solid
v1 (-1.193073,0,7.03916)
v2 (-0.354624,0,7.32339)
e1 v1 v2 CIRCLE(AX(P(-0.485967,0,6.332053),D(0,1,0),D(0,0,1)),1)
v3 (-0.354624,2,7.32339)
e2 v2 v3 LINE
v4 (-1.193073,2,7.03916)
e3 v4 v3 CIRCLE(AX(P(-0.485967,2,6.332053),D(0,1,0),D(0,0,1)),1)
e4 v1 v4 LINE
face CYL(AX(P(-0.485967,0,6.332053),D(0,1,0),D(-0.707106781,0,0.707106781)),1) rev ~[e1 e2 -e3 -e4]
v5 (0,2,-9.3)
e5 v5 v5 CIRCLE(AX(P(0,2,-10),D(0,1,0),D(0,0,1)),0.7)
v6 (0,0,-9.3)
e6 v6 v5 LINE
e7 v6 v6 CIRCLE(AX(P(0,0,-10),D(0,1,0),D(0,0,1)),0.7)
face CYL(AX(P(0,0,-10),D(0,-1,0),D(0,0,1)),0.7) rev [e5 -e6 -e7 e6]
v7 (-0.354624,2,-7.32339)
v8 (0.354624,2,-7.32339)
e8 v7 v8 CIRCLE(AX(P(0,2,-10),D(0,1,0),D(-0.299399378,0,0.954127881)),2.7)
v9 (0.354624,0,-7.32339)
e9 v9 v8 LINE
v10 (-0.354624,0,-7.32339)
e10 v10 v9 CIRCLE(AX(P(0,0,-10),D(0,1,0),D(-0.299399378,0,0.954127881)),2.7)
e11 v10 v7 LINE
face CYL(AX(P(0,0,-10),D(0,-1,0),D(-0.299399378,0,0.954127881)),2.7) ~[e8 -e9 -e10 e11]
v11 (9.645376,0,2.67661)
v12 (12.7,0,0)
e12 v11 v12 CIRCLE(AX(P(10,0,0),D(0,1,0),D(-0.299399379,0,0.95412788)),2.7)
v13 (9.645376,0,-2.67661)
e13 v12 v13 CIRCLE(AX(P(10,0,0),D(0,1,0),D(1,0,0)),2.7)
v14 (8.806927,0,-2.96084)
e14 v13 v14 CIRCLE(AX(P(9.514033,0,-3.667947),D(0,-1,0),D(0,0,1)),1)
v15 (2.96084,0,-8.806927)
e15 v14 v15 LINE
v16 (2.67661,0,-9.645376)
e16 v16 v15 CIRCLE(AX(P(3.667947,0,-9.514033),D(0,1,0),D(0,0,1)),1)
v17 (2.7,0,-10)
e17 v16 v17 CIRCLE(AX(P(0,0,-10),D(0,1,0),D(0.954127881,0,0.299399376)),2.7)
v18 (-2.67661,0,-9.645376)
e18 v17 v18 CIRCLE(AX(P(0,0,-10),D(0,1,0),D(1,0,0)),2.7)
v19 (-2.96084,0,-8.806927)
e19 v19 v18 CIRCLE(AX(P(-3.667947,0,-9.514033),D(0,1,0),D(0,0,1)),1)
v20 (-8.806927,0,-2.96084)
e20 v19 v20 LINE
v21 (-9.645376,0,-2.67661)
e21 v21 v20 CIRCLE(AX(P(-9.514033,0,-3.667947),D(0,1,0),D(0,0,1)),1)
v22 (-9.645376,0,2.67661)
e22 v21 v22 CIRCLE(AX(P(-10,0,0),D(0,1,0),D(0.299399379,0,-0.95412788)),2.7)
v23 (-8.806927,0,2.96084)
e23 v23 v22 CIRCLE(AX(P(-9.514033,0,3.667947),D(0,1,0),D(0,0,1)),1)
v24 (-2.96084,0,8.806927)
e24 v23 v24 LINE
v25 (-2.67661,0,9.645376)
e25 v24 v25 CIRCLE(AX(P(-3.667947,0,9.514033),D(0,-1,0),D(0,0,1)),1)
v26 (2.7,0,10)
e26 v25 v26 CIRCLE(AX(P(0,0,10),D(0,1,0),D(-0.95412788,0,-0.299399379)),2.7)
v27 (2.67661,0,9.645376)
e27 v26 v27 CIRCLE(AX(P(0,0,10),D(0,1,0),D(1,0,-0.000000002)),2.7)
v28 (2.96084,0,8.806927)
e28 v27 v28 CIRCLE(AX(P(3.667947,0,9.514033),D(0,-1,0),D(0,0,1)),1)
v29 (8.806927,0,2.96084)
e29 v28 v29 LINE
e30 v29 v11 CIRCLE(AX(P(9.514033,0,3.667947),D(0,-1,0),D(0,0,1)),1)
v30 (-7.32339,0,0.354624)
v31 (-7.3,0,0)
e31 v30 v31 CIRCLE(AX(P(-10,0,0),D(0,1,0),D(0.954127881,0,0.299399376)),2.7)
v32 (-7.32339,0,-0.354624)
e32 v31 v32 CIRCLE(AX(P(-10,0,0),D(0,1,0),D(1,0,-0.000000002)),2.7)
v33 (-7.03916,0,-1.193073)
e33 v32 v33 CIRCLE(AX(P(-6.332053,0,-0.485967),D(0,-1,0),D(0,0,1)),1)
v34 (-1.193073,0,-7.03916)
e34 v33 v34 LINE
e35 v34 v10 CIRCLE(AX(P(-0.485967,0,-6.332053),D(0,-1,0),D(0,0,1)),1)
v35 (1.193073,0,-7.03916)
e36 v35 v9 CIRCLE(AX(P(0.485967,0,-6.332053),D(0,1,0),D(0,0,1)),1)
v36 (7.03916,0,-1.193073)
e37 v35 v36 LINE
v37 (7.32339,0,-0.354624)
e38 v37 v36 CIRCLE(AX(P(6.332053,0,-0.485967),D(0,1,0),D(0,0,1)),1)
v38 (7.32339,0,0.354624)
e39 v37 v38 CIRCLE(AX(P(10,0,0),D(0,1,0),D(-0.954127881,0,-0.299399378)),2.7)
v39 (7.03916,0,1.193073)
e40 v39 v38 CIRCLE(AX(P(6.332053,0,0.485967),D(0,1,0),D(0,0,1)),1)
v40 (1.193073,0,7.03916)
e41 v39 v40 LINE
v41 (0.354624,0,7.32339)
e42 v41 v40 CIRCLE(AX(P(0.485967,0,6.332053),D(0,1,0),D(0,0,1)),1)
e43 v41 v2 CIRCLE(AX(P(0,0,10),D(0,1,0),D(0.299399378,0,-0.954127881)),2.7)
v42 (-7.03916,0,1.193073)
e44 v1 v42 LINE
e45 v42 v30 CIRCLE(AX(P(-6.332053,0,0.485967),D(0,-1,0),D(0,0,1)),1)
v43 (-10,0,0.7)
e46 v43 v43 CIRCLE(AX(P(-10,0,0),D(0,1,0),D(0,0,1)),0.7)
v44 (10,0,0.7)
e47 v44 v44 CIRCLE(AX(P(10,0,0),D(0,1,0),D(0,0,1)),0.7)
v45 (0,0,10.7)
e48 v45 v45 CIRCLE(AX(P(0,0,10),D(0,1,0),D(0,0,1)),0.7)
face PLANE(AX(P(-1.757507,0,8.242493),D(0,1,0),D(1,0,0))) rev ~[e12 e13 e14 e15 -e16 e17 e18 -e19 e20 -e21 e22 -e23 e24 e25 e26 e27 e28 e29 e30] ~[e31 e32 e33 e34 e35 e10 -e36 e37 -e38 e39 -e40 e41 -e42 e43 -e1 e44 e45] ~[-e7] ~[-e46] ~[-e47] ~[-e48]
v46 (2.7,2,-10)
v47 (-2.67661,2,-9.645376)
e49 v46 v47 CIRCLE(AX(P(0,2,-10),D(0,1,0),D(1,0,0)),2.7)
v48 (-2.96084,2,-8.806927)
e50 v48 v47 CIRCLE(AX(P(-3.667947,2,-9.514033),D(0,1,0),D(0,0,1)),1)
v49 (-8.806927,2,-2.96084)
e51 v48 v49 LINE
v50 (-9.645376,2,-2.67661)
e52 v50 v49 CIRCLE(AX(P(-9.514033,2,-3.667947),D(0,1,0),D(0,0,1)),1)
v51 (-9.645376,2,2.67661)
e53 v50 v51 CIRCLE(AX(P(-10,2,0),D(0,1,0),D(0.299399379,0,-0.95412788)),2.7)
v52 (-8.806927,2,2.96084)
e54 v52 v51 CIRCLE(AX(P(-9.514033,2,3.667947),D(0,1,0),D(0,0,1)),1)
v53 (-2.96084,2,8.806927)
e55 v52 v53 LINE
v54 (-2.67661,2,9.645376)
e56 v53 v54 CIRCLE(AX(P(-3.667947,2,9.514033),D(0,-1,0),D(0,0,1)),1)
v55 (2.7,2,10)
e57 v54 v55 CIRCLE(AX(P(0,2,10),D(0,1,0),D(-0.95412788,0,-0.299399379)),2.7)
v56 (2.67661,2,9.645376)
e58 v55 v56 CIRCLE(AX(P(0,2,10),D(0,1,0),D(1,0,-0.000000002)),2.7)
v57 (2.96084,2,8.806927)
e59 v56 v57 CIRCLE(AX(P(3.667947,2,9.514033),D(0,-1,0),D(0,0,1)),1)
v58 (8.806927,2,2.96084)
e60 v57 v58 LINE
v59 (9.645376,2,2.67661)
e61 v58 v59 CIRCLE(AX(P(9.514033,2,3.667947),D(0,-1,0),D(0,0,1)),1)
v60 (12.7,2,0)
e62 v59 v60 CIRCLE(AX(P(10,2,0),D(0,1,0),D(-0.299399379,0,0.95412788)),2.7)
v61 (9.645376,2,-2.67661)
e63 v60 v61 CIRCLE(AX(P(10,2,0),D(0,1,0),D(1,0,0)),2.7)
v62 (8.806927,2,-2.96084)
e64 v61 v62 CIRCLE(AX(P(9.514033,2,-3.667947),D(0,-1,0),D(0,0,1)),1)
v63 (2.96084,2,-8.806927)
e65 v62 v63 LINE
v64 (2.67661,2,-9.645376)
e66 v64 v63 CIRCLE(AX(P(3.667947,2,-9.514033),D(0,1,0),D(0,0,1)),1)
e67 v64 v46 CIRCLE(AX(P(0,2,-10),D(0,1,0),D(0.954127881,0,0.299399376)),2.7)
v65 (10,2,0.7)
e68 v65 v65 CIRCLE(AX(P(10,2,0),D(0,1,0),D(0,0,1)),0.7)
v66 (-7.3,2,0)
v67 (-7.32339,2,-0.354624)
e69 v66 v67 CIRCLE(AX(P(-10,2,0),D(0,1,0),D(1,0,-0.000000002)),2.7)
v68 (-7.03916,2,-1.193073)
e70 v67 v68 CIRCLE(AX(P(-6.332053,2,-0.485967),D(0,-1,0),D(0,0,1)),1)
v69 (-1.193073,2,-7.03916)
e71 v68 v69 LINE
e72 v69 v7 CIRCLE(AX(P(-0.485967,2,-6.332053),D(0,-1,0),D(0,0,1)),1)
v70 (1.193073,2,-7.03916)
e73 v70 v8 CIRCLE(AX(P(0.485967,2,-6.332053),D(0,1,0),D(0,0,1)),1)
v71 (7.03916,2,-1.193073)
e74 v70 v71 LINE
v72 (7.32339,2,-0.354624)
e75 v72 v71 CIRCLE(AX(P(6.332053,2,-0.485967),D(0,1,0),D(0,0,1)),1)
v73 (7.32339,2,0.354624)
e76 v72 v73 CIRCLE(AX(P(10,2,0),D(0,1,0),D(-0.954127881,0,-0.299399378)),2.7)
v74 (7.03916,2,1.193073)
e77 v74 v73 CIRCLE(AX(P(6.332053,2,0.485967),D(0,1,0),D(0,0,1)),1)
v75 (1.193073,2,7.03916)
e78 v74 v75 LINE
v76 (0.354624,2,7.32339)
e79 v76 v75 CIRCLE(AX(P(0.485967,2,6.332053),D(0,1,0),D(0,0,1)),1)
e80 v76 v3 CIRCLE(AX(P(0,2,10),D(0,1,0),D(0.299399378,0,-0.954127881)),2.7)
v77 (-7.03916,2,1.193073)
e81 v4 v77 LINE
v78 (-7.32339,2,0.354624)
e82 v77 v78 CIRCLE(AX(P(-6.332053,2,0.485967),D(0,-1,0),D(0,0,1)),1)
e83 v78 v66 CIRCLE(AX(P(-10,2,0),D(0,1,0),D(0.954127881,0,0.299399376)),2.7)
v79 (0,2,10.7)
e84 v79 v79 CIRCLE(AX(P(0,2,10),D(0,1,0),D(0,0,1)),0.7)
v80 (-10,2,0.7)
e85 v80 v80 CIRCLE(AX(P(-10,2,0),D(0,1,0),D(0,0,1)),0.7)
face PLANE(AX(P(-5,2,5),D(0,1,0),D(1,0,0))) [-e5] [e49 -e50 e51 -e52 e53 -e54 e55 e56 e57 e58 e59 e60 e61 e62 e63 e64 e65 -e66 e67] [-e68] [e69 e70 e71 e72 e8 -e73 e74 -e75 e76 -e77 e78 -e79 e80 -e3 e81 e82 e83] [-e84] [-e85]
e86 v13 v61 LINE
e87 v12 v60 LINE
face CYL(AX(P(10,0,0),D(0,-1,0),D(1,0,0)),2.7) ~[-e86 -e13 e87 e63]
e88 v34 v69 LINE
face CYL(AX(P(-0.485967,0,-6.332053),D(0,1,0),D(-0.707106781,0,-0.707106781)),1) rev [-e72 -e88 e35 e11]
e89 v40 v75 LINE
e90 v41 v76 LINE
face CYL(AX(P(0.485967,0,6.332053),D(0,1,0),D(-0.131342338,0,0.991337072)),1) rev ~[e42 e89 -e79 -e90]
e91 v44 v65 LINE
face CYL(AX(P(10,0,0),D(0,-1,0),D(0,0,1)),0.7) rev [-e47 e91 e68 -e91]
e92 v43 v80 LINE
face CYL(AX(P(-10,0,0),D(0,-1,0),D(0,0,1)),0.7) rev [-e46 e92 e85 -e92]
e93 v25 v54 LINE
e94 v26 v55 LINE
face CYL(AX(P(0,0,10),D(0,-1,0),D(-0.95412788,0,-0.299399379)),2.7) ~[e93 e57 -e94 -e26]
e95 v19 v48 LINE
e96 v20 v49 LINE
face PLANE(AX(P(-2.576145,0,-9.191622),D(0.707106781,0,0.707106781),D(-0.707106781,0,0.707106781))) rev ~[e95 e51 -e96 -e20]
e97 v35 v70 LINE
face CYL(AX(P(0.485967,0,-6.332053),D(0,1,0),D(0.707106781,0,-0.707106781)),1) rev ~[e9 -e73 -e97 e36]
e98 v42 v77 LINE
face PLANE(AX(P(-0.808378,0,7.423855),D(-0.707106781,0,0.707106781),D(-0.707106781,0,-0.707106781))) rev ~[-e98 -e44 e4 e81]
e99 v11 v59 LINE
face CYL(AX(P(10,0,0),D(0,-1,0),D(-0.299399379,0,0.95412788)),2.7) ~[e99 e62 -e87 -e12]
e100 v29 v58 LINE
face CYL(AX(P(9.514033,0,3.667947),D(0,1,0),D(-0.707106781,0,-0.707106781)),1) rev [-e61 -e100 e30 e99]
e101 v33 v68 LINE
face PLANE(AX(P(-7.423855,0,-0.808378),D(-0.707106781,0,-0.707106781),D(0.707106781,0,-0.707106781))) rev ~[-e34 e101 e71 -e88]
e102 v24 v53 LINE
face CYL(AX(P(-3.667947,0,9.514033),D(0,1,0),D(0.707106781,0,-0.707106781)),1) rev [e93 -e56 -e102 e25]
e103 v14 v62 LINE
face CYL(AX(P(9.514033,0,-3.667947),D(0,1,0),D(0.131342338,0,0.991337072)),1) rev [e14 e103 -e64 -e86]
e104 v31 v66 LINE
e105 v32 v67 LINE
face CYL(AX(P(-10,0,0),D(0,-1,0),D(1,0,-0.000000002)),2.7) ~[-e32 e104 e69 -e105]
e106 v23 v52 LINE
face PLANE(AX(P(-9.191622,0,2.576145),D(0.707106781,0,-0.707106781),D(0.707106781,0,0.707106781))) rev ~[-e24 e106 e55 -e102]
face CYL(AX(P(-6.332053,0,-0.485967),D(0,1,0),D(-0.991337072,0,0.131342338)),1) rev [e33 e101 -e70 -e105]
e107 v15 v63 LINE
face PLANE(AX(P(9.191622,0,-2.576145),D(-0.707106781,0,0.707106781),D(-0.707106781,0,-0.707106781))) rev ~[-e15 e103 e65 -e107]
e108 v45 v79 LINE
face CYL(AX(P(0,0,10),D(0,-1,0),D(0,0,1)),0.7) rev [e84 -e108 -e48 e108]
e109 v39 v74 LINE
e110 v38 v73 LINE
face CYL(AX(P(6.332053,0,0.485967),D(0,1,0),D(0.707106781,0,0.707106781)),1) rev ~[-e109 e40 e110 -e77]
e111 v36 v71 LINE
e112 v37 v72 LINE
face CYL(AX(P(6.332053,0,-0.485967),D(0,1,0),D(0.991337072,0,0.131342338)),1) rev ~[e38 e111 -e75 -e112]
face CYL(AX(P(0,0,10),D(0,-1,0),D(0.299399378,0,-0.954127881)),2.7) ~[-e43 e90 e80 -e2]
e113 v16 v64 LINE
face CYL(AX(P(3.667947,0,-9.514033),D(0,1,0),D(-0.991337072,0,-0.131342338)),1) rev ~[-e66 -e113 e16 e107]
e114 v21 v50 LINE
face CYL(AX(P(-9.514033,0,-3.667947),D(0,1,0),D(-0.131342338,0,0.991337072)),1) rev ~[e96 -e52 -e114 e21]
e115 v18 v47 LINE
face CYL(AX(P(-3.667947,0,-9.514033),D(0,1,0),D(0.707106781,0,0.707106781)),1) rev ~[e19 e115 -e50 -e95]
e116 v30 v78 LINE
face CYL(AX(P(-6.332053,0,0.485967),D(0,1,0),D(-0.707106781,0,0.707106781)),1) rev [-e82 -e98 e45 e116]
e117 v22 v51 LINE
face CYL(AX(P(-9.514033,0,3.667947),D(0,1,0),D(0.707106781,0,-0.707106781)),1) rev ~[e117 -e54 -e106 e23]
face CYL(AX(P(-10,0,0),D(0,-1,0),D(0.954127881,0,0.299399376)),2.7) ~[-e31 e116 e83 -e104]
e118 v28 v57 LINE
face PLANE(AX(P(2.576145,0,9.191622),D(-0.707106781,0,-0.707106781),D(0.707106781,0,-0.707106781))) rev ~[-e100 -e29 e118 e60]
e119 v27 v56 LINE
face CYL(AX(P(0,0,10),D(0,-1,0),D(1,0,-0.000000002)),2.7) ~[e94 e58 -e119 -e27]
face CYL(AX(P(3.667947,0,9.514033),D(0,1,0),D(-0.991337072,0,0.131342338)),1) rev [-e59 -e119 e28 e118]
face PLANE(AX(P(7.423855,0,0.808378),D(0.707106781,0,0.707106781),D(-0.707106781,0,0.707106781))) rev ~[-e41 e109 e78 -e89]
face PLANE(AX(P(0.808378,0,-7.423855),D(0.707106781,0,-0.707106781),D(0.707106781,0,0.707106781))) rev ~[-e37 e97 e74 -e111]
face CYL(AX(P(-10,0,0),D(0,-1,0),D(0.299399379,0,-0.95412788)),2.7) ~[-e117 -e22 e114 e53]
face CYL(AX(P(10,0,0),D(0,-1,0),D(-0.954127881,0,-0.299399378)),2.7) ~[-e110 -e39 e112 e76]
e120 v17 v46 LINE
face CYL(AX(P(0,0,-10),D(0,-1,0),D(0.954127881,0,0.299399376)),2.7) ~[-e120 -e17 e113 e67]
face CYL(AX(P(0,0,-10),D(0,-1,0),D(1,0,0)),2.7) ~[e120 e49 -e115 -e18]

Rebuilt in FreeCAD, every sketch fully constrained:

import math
import FreeCAD as App
import Part
import Sketcher
from FreeCAD import Vector


def edges_at(feature, points):
    """Names of the edges that pass closest to the given points."""
    edges = feature.Shape.Edges
    near = lambda p: min(range(len(edges)), key=lambda i: edges[i].distToShape(Part.Vertex(*p))[0])
    return sorted({f"Edge{near(p) + 1}" for p in points})

doc = App.newDocument("Part")
body = doc.addObject("PartDesign::Body", "Body")

sketch1 = body.newObject("Sketcher::SketchObject", "Sketch")
sketch1.AttachmentSupport = (doc.getObject("XZ_Plane"), [""])
sketch1.MapMode = "FlatFace"
sketch1.addGeometry([
    Part.ArcOfCircle(Part.Circle(Vector(-10, 0, 0), Vector(0, 0, 1), 2.7), math.radians(73), math.radians(287)),
    Part.LineSegment(Vector(-9.2, 2.6, 0), Vector(-2.6, 9.2, 0)),
    Part.ArcOfCircle(Part.Circle(Vector(0, 10, 0), Vector(0, 0, 1), 2.7), math.radians(0), math.radians(197)),
    Part.ArcOfCircle(Part.Circle(Vector(0, 10, 0), Vector(0, 0, 1), 2.7), math.radians(-17.42), math.radians(0)),
    Part.LineSegment(Vector(2.6, 9.2, 0), Vector(9.2, 2.6, 0)),
    Part.ArcOfCircle(Part.Circle(Vector(10, 0, 0), Vector(0, 0, 1), 2.7), math.radians(0), math.radians(107)),
    Part.ArcOfCircle(Part.Circle(Vector(10, 0, 0), Vector(0, 0, 1), 2.7), math.radians(-107), math.radians(0)),
    Part.LineSegment(Vector(9.2, -2.6, 0), Vector(2.6, -9.2, 0)),
    Part.ArcOfCircle(Part.Circle(Vector(0, -10, 0), Vector(0, 0, 1), 2.7), math.radians(0), math.radians(17.42)),
    Part.ArcOfCircle(Part.Circle(Vector(0, -10, 0), Vector(0, 0, 1), 2.7), math.radians(163), math.radians(360)),
    Part.LineSegment(Vector(-2.6, -9.2, 0), Vector(-9.2, -2.6, 0)),
    Part.ArcOfCircle(Part.Circle(Vector(-10, 0, 0), Vector(0, 0, 1), 2.7), math.radians(-17.42), math.radians(0)),
    Part.LineSegment(Vector(-7.4, -0.8, 0), Vector(-0.8, -7.4, 0)),
    Part.ArcOfCircle(Part.Circle(Vector(0, -10, 0), Vector(0, 0, 1), 2.7), math.radians(73), math.radians(107)),
    Part.LineSegment(Vector(0.8, -7.4, 0), Vector(7.4, -0.8, 0)),
    Part.ArcOfCircle(Part.Circle(Vector(10, 0, 0), Vector(0, 0, 1), 2.7), math.radians(163), math.radians(197)),
    Part.LineSegment(Vector(7.4, 0.8, 0), Vector(0.8, 7.4, 0)),
    Part.ArcOfCircle(Part.Circle(Vector(0, 10, 0), Vector(0, 0, 1), 2.7), math.radians(-107), math.radians(-73)),
    Part.LineSegment(Vector(-0.8, 7.4, 0), Vector(-7.4, 0.8, 0)),
    Part.ArcOfCircle(Part.Circle(Vector(-10, 0, 0), Vector(0, 0, 1), 2.7), math.radians(0), math.radians(17.42)),
    Part.Circle(Vector(-10, 0, 0), Vector(0, 0, 1), 0.7),
    Part.Circle(Vector(0, -10, 0), Vector(0, 0, 1), 0.7),
    Part.Circle(Vector(0, 10, 0), Vector(0, 0, 1), 0.7),
    Part.Circle(Vector(10, 0, 0), Vector(0, 0, 1), 0.7),
], False)
sketch1.addConstraint([
    Sketcher.Constraint("Coincident", 0, 1, 1, 1),
    Sketcher.Constraint("Coincident", 1, 2, 2, 2),
    Sketcher.Constraint("Tangent", 2, 1, 3, 2),
    Sketcher.Constraint("Coincident", 3, 1, 4, 1),
    Sketcher.Constraint("Coincident", 4, 2, 5, 2),
    Sketcher.Constraint("Tangent", 5, 1, 6, 2),
    Sketcher.Constraint("Coincident", 6, 1, 7, 1),
    Sketcher.Constraint("Coincident", 7, 2, 8, 2),
    Sketcher.Constraint("Tangent", 8, 1, 9, 2),
    Sketcher.Constraint("Coincident", 9, 1, 10, 1),
    Sketcher.Constraint("Coincident", 10, 2, 0, 2),
    Sketcher.Constraint("Coincident", 11, 1, 12, 1),
    Sketcher.Constraint("Coincident", 12, 2, 13, 2),
    Sketcher.Constraint("Coincident", 13, 1, 14, 1),
    Sketcher.Constraint("Coincident", 14, 2, 15, 2),
    Sketcher.Constraint("Coincident", 15, 1, 16, 1),
    Sketcher.Constraint("Coincident", 16, 2, 17, 2),
    Sketcher.Constraint("Coincident", 17, 1, 18, 1),
    Sketcher.Constraint("Coincident", 18, 2, 19, 2),
    Sketcher.Constraint("Tangent", 19, 1, 11, 2),
    Sketcher.Constraint("Coincident", 11, 3, 0, 3),
    Sketcher.Constraint("Coincident", 13, 3, 8, 3),
    Sketcher.Constraint("Coincident", 15, 3, 5, 3),
    Sketcher.Constraint("Coincident", 17, 3, 2, 3),
    Sketcher.Constraint("Coincident", 20, 3, 0, 3),
    Sketcher.Constraint("Coincident", 21, 3, 8, 3),
    Sketcher.Constraint("Coincident", 22, 3, 2, 3),
    Sketcher.Constraint("Coincident", 23, 3, 5, 3),
    Sketcher.Constraint("Equal", 0, 2),
    Sketcher.Constraint("Equal", 2, 3),
    Sketcher.Constraint("Equal", 3, 5),
    Sketcher.Constraint("Equal", 5, 6),
    Sketcher.Constraint("Equal", 6, 8),
    Sketcher.Constraint("Equal", 8, 9),
    Sketcher.Constraint("Equal", 9, 11),
    Sketcher.Constraint("Equal", 11, 13),
    Sketcher.Constraint("Equal", 13, 15),
    Sketcher.Constraint("Equal", 15, 17),
    Sketcher.Constraint("Equal", 17, 19),
    Sketcher.Constraint("Equal", 20, 21),
    Sketcher.Constraint("Equal", 21, 22),
    Sketcher.Constraint("Equal", 22, 23),
    Sketcher.Constraint("Symmetric", 0, 3, 5, 3, -1, 1),
    Sketcher.Constraint("Symmetric", 2, 3, 8, 3, -1, 1),
    Sketcher.Constraint("Symmetric", 1, 2, 3, 1, -2),
    Sketcher.Constraint("Symmetric", 0, 1, 4, 2, -2),
    Sketcher.Constraint("PointOnObject", 5, 1, -1),
    Sketcher.Constraint("PointOnObject", 19, 1, -1),
    Sketcher.Constraint("Perpendicular", 1, 4),
    Sketcher.Constraint("Perpendicular", 4, 7),
    Sketcher.Constraint("Perpendicular", 7, 10),
    Sketcher.Constraint("Parallel", 10, 12),
    Sketcher.Constraint("Perpendicular", 12, 14),
    Sketcher.Constraint("Perpendicular", 14, 16),
    Sketcher.Constraint("Perpendicular", 16, 18),
    Sketcher.Constraint("Horizontal", 22, 3, 2, 1),
    Sketcher.Constraint("Horizontal", 21, 3, 8, 1),
    Sketcher.Constraint("Horizontal", 7, 2, 9, 1),
    Sketcher.Constraint("Horizontal", 12, 2, 13, 1),
    Sketcher.Constraint("Horizontal", 16, 2, 17, 1),
    Sketcher.Constraint("Vertical", 4, 2, 6, 1),
    Sketcher.Constraint("Vertical", 14, 2, 15, 1),
    Sketcher.Constraint("Equal", 10, 12),
    Sketcher.Constraint("Diameter", 20, 1.4),
    Sketcher.Constraint("Radius", 0, 2.7),
    Sketcher.Constraint("DistanceX", 0, 3, -1, 1, 10.0),
    Sketcher.Constraint("DistanceY", -1, 1, 2, 3, 10.0),
    Sketcher.Constraint("DistanceX", 0, 1, -1, 1, 9.191622),
])
pad1 = body.newObject("PartDesign::Pad", "Pad")
pad1.Profile = sketch1
pad1.Length = 2
pad1.Reversed = True
doc.recompute()

fillet = body.newObject("PartDesign::Fillet", "Fillet")
fillet.Base = (pad1, edges_at(pad1, [
    (-2.576, 1, 9.192),
    (-9.192, 1, 2.576),
    (-9.192, 1, -2.576),
    (-2.576, 1, -9.192),
    (2.576, 1, -9.192),
    (9.192, 1, -2.576),
    (9.192, 1, 2.576),
    (2.576, 1, 9.192),
    (-0.808, 1, -7.424),
    (-7.424, 1, -0.808),
    (-7.424, 1, 0.808),
    (-0.808, 1, 7.424),
    (0.808, 1, 7.424),
    (7.424, 1, 0.808),
    (7.424, 1, -0.808),
    (0.808, 1, -7.424),
]))
fillet.Radius = 1

doc.recompute()
